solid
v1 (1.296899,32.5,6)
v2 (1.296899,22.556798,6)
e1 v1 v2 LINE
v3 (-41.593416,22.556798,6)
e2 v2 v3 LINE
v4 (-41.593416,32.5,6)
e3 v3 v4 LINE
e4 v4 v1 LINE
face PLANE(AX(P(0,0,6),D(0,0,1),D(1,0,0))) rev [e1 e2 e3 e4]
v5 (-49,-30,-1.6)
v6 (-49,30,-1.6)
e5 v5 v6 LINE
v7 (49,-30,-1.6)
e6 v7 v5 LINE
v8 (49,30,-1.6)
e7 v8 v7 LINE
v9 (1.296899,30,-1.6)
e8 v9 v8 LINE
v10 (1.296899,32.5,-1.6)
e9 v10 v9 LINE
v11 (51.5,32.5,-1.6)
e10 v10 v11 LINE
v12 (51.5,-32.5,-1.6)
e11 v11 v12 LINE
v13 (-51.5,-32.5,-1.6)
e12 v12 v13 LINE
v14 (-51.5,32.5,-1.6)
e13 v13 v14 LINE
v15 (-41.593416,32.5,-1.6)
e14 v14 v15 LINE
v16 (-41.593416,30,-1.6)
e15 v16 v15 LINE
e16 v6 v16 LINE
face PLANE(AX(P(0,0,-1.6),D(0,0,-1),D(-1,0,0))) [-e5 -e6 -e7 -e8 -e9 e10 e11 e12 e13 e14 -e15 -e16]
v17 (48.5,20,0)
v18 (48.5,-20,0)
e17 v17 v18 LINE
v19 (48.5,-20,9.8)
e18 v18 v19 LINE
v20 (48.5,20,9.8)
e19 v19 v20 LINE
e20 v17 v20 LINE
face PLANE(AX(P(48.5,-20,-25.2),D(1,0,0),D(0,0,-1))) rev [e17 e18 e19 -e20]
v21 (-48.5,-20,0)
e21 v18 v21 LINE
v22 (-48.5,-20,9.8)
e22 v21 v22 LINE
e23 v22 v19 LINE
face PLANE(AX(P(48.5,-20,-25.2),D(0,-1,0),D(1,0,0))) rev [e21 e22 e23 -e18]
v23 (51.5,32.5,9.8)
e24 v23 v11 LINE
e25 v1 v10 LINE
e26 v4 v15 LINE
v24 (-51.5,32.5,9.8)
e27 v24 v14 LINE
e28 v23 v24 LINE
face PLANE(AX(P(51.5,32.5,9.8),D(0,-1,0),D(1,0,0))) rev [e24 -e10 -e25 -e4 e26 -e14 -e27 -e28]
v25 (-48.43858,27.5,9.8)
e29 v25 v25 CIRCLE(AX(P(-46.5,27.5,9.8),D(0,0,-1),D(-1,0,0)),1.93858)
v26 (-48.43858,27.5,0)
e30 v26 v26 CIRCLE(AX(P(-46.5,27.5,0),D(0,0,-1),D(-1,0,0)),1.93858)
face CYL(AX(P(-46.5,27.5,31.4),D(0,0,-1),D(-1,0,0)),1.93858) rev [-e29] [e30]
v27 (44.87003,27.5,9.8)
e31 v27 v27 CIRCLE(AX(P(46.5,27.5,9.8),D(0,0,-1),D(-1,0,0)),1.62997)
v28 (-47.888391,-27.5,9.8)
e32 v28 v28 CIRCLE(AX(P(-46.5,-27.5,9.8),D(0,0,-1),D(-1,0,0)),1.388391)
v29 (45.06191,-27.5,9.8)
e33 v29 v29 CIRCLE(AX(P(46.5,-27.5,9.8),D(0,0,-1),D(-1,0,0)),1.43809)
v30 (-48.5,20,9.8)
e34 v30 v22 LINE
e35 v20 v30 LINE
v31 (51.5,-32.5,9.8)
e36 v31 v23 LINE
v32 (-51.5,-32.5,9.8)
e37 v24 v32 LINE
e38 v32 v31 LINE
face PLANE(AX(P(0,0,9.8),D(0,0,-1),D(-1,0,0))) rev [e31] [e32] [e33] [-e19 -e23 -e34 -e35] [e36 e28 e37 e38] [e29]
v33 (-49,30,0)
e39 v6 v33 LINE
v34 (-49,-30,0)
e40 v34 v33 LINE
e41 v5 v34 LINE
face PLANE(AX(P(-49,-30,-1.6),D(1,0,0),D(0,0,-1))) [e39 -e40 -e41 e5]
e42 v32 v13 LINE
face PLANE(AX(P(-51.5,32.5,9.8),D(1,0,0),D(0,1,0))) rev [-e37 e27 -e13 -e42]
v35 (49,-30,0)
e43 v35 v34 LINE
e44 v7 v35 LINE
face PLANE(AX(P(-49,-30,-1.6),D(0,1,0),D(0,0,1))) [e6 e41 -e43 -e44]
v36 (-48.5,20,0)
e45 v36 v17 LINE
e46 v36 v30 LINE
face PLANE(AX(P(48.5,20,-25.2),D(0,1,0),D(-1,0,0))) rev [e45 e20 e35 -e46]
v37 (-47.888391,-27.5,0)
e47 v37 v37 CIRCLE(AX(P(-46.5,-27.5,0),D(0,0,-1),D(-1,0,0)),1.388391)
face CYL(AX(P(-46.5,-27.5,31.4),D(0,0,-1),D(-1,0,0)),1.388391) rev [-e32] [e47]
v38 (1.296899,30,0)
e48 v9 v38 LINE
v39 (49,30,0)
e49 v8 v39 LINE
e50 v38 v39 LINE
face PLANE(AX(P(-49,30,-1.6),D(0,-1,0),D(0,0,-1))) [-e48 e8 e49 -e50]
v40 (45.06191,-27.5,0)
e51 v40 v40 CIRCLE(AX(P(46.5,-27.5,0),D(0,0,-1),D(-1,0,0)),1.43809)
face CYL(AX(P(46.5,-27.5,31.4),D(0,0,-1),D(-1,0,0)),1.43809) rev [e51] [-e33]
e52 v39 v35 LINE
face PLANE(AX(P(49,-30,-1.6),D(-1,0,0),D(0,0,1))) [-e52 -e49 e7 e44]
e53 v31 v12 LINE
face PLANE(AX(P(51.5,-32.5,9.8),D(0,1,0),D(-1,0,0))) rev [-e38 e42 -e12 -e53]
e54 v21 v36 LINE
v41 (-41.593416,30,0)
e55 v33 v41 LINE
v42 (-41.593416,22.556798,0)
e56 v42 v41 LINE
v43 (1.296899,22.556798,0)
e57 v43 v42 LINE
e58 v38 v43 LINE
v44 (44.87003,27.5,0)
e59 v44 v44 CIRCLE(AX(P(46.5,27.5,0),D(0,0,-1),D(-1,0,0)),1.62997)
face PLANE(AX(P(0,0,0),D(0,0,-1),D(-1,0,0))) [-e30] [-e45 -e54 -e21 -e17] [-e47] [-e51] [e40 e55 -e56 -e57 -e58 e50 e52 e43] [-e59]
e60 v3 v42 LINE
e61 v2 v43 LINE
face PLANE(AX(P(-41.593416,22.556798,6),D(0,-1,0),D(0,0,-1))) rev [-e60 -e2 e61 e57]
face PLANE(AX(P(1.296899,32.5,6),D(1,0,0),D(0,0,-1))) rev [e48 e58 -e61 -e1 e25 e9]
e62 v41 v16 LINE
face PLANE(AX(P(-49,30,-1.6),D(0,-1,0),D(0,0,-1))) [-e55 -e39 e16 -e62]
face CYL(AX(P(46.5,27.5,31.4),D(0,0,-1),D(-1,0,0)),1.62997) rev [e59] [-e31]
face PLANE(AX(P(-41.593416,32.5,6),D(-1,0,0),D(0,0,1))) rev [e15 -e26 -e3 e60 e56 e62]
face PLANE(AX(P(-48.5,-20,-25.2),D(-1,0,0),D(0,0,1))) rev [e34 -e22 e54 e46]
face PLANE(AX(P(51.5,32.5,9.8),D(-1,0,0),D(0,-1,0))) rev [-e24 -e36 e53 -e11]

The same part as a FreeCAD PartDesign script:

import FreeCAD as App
import Part
import Sketcher

V = App.Vector
Q = App.Units.Quantity


def add_polygon(sketch, points):
    """Adds a closed chain of lines whose ends are joined by coincident constraints."""
    first, n = sketch.GeometryCount, len(points)
    for a, b in zip(points, points[1:] + points[:1]):
        sketch.addGeometry(Part.LineSegment(App.Vector(*a, 0), App.Vector(*b, 0)), False)
    for i in range(n):
        sketch.addConstraint(Sketcher.Constraint("Coincident", first + i, 2, first + (i + 1) % n, 1))

doc = App.newDocument("Part")
params = doc.addObject("Spreadsheet::Sheet", "Params")
for row, (alias, value) in enumerate([
    ("sketch1_width", "103 mm"),
    ("sketch1_height", "65 mm"),
    ("pad1_length", "9.8 mm"),
    ("sketch2_width", "97 mm"),
    ("sketch2_height", "40 mm"),
    ("pocket1_length", "35 mm"),
    ("pocket2_length", "6 mm"),
    ("sketch4_width", "103 mm"),
    ("sketch4_width2", "98 mm"),
    ("sketch4_height", "65 mm"),
    ("sketch4_height2", "60 mm"),
    ("pad2_length", "1.6 mm"),
    ("pocket3_length", "9.943202 mm"),
], start=1):
    params.set(f"A{row}", alias)
    params.set(f"B{row}", "=" + value)
    params.setAlias(f"B{row}", alias)

body = doc.addObject("PartDesign::Body", "Body")

# Sketch on XY plane
sketch1 = doc.addObject("Sketcher::SketchObject", "Sketch")
body.addObject(sketch1)
sketch1.AttachmentSupport = (doc.XY_Plane, [""])
sketch1.MapMode = "FlatFace"
add_polygon(sketch1, [(-52, 32), (-52, -32), (52, -32), (52, 32)])  # lines 0-3
sketch1.addConstraint(Sketcher.Constraint("Vertical", 0))
sketch1.addConstraint(Sketcher.Constraint("Horizontal", 1))
sketch1.addConstraint(Sketcher.Constraint("Vertical", 2))
sketch1.addConstraint(Sketcher.Constraint("Horizontal", 3))
sketch1.addConstraint(Sketcher.Constraint("Symmetric", 0, 2, 2, 2, -1, 1))
sketch1.addConstraint(Sketcher.Constraint("DistanceX", 1, 1, 1, 2, Q("103 mm")))
sketch1.addConstraint(Sketcher.Constraint("DistanceY", 0, 2, 0, 1, Q("65 mm")))
sketch1.setExpression("Constraints[9]", "Params.sketch1_width")
sketch1.setExpression("Constraints[10]", "Params.sketch1_height")
pad1 = doc.addObject("PartDesign::Pad", "Pad")
body.addObject(pad1)
pad1.Profile = sketch1
pad1.setExpression("Length", "Params.pad1_length")

# Sketch on XY plane
sketch2 = doc.addObject("Sketcher::SketchObject", "Sketch001")
body.addObject(sketch2)
sketch2.AttachmentSupport = (doc.XY_Plane, [""])
sketch2.MapMode = "FlatFace"
sketch2.AttachmentOffset = App.Placement(V(0, 0, 9.8), App.Rotation())
add_polygon(sketch2, [(-48, 20), (-48, -20), (48, -20), (48, 20)])  # lines 0-3
sketch2.addConstraint(Sketcher.Constraint("Vertical", 0))
sketch2.addConstraint(Sketcher.Constraint("Horizontal", 1))
sketch2.addConstraint(Sketcher.Constraint("Vertical", 2))
sketch2.addConstraint(Sketcher.Constraint("Horizontal", 3))
sketch2.addConstraint(Sketcher.Constraint("Symmetric", 0, 2, 2, 2, -1, 1))
sketch2.addConstraint(Sketcher.Constraint("DistanceX", 1, 1, 1, 2, Q("97 mm")))
sketch2.addConstraint(Sketcher.Constraint("DistanceY", 0, 2, 0, 1, Q("40 mm")))
sketch2.setExpression("Constraints[9]", "Params.sketch2_width")
sketch2.setExpression("Constraints[10]", "Params.sketch2_height")
pocket1 = doc.addObject("PartDesign::Pocket", "Pocket")
body.addObject(pocket1)
pocket1.Profile = sketch2
pocket1.setExpression("Length", "Params.pocket1_length")

# Sketch on XY plane
sketch3 = doc.addObject("Sketcher::SketchObject", "Sketch002")
body.addObject(sketch3)
sketch3.AttachmentSupport = (doc.XY_Plane, [""])
sketch3.MapMode = "FlatFace"
add_polygon(sketch3, [(1, 33), (1, 23), (-42, 23), (-42, 33)])  # lines 0-3
sketch3.addConstraint(Sketcher.Constraint("Vertical", 0))
sketch3.addConstraint(Sketcher.Constraint("Horizontal", 1))
sketch3.addConstraint(Sketcher.Constraint("Vertical", 2))
sketch3.addConstraint(Sketcher.Constraint("Horizontal", 3))
sketch3.addConstraint(Sketcher.Constraint("DistanceY", -1, 1, 2, 2, Q("32.5 mm")))
sketch3.addConstraint(Sketcher.Constraint("DistanceY", 0, 2, 0, 1, Q("9.943202 mm")))
sketch3.addConstraint(Sketcher.Constraint("DistanceX", -1, 1, 0, 2, Q("1.296899 mm")))
sketch3.addConstraint(Sketcher.Constraint("DistanceX", 1, 2, 1, 1, Q("42.890316 mm")))
pocket2 = doc.addObject("PartDesign::Pocket", "Pocket001")
body.addObject(pocket2)
pocket2.Profile = sketch3
pocket2.setExpression("Length", "Params.pocket2_length")
pocket2.Reversed = True

# Sketch on XY plane
sketch4 = doc.addObject("Sketcher::SketchObject", "Sketch003")
body.addObject(sketch4)
sketch4.AttachmentSupport = (doc.XY_Plane, [""])
sketch4.MapMode = "FlatFace"
add_polygon(sketch4, [(52, 32), (52, -32), (-52, -32), (-52, 32)])  # lines 0-3
add_polygon(sketch4, [(-49, -30), (49, -30), (49, 30), (-49, 30)])  # lines 4-7
sketch4.addConstraint(Sketcher.Constraint("Vertical", 0))
sketch4.addConstraint(Sketcher.Constraint("Horizontal", 1))
sketch4.addConstraint(Sketcher.Constraint("Vertical", 2))
sketch4.addConstraint(Sketcher.Constraint("Horizontal", 3))
sketch4.addConstraint(Sketcher.Constraint("Horizontal", 4))
sketch4.addConstraint(Sketcher.Constraint("Vertical", 5))
sketch4.addConstraint(Sketcher.Constraint("Horizontal", 6))
sketch4.addConstraint(Sketcher.Constraint("Vertical", 7))
sketch4.addConstraint(Sketcher.Constraint("Symmetric", 0, 2, 2, 2, -1, 1))
sketch4.addConstraint(Sketcher.Constraint("Symmetric", 4, 2, 6, 2, -1, 1))
sketch4.addConstraint(Sketcher.Constraint("DistanceX", 1, 2, 1, 1, Q("103 mm")))
sketch4.addConstraint(Sketcher.Constraint("DistanceX", 4, 1, 4, 2, Q("98 mm")))
sketch4.addConstraint(Sketcher.Constraint("DistanceY", 0, 2, 0, 1, Q("65 mm")))
sketch4.addConstraint(Sketcher.Constraint("DistanceY", 5, 1, 5, 2, Q("60 mm")))
sketch4.setExpression("Constraints[18]", "Params.sketch4_width")
sketch4.setExpression("Constraints[19]", "Params.sketch4_width2")
sketch4.setExpression("Constraints[20]", "Params.sketch4_height")
sketch4.setExpression("Constraints[21]", "Params.sketch4_height2")
pad2 = doc.addObject("PartDesign::Pad", "Pad001")
body.addObject(pad2)
pad2.Profile = sketch4
pad2.setExpression("Length", "Params.pad2_length")
pad2.Reversed = True

# Sketch on XZ plane
sketch5 = doc.addObject("Sketcher::SketchObject", "Sketch004")
body.addObject(sketch5)
sketch5.AttachmentSupport = (doc.XZ_Plane, [""])
sketch5.MapMode = "FlatFace"
sketch5.AttachmentOffset = App.Placement(V(0, 0, -32.5), App.Rotation())
add_polygon(sketch5, [(-42, -16), (-42, 0), (1, 0), (1, -16)])  # lines 0-3
sketch5.addConstraint(Sketcher.Constraint("Vertical", 0))
sketch5.addConstraint(Sketcher.Constraint("Horizontal", 1))
sketch5.addConstraint(Sketcher.Constraint("Vertical", 2))
sketch5.addConstraint(Sketcher.Constraint("Horizontal", 3))
sketch5.addConstraint(Sketcher.Constraint("PointOnObject", 0, 2, -1))
sketch5.addConstraint(Sketcher.Constraint("DistanceX", -1, 1, 1, 2, Q("1.296899 mm")))
sketch5.addConstraint(Sketcher.Constraint("DistanceX", 1, 1, 1, 2, Q("42.890316 mm")))
sketch5.addConstraint(Sketcher.Constraint("DistanceY", 0, 1, 0, 2, Q("16.344193 mm")))
pocket3 = doc.addObject("PartDesign::Pocket", "Pocket002")
body.addObject(pocket3)
pocket3.Profile = sketch5
pocket3.setExpression("Length", "Params.pocket3_length")
pocket3.Reversed = True

# Sketch on XY plane
sketch6 = doc.addObject("Sketcher::SketchObject", "Sketch005")
body.addObject(sketch6)
sketch6.AttachmentSupport = (doc.XY_Plane, [""])
sketch6.MapMode = "FlatFace"
sketch6.AttachmentOffset = App.Placement(V(0, 0, -1.6), App.Rotation())
sketch6.addGeometry(Part.Circle(V(46.5, 27.5, 0), V(0, 0, 1), 1.6), False)
sketch6.addGeometry(Part.Circle(V(-46.5, 27.5, 0), V(0, 0, 1), 1.9), False)
sketch6.addGeometry(Part.Circle(V(-46.5, -27.5, 0), V(0, 0, 1), 1.4), False)
sketch6.addGeometry(Part.Circle(V(46.5, -27.5, 0), V(0, 0, 1), 1.4), False)
sketch6.addConstraint(Sketcher.Constraint("Symmetric", 0, 3, 2, 3, -1, 1))
sketch6.addConstraint(Sketcher.Constraint("Symmetric", 1, 3, 3, 3, -1, 1))
sketch6.addConstraint(Sketcher.Constraint("Symmetric", 0, 3, 1, 3, -2))
sketch6.addConstraint(Sketcher.Constraint("DistanceX", 1, 3, 0, 3, Q("93 mm")))
sketch6.addConstraint(Sketcher.Constraint("DistanceY", 2, 3, 1, 3, Q("55 mm")))
sketch6.addConstraint(Sketcher.Constraint("Diameter", 0, Q("3.25994 mm")))
sketch6.addConstraint(Sketcher.Constraint("Diameter", 1, Q("3.87716 mm")))
sketch6.addConstraint(Sketcher.Constraint("Diameter", 2, Q("2.776782 mm")))
sketch6.addConstraint(Sketcher.Constraint("Diameter", 3, Q("2.876179 mm")))
pocket4 = doc.addObject("PartDesign::Pocket", "Pocket003")
body.addObject(pocket4)
pocket4.Profile = sketch6
pocket4.Type = "ThroughAll"
pocket4.Midplane = True

doc.recompute()
